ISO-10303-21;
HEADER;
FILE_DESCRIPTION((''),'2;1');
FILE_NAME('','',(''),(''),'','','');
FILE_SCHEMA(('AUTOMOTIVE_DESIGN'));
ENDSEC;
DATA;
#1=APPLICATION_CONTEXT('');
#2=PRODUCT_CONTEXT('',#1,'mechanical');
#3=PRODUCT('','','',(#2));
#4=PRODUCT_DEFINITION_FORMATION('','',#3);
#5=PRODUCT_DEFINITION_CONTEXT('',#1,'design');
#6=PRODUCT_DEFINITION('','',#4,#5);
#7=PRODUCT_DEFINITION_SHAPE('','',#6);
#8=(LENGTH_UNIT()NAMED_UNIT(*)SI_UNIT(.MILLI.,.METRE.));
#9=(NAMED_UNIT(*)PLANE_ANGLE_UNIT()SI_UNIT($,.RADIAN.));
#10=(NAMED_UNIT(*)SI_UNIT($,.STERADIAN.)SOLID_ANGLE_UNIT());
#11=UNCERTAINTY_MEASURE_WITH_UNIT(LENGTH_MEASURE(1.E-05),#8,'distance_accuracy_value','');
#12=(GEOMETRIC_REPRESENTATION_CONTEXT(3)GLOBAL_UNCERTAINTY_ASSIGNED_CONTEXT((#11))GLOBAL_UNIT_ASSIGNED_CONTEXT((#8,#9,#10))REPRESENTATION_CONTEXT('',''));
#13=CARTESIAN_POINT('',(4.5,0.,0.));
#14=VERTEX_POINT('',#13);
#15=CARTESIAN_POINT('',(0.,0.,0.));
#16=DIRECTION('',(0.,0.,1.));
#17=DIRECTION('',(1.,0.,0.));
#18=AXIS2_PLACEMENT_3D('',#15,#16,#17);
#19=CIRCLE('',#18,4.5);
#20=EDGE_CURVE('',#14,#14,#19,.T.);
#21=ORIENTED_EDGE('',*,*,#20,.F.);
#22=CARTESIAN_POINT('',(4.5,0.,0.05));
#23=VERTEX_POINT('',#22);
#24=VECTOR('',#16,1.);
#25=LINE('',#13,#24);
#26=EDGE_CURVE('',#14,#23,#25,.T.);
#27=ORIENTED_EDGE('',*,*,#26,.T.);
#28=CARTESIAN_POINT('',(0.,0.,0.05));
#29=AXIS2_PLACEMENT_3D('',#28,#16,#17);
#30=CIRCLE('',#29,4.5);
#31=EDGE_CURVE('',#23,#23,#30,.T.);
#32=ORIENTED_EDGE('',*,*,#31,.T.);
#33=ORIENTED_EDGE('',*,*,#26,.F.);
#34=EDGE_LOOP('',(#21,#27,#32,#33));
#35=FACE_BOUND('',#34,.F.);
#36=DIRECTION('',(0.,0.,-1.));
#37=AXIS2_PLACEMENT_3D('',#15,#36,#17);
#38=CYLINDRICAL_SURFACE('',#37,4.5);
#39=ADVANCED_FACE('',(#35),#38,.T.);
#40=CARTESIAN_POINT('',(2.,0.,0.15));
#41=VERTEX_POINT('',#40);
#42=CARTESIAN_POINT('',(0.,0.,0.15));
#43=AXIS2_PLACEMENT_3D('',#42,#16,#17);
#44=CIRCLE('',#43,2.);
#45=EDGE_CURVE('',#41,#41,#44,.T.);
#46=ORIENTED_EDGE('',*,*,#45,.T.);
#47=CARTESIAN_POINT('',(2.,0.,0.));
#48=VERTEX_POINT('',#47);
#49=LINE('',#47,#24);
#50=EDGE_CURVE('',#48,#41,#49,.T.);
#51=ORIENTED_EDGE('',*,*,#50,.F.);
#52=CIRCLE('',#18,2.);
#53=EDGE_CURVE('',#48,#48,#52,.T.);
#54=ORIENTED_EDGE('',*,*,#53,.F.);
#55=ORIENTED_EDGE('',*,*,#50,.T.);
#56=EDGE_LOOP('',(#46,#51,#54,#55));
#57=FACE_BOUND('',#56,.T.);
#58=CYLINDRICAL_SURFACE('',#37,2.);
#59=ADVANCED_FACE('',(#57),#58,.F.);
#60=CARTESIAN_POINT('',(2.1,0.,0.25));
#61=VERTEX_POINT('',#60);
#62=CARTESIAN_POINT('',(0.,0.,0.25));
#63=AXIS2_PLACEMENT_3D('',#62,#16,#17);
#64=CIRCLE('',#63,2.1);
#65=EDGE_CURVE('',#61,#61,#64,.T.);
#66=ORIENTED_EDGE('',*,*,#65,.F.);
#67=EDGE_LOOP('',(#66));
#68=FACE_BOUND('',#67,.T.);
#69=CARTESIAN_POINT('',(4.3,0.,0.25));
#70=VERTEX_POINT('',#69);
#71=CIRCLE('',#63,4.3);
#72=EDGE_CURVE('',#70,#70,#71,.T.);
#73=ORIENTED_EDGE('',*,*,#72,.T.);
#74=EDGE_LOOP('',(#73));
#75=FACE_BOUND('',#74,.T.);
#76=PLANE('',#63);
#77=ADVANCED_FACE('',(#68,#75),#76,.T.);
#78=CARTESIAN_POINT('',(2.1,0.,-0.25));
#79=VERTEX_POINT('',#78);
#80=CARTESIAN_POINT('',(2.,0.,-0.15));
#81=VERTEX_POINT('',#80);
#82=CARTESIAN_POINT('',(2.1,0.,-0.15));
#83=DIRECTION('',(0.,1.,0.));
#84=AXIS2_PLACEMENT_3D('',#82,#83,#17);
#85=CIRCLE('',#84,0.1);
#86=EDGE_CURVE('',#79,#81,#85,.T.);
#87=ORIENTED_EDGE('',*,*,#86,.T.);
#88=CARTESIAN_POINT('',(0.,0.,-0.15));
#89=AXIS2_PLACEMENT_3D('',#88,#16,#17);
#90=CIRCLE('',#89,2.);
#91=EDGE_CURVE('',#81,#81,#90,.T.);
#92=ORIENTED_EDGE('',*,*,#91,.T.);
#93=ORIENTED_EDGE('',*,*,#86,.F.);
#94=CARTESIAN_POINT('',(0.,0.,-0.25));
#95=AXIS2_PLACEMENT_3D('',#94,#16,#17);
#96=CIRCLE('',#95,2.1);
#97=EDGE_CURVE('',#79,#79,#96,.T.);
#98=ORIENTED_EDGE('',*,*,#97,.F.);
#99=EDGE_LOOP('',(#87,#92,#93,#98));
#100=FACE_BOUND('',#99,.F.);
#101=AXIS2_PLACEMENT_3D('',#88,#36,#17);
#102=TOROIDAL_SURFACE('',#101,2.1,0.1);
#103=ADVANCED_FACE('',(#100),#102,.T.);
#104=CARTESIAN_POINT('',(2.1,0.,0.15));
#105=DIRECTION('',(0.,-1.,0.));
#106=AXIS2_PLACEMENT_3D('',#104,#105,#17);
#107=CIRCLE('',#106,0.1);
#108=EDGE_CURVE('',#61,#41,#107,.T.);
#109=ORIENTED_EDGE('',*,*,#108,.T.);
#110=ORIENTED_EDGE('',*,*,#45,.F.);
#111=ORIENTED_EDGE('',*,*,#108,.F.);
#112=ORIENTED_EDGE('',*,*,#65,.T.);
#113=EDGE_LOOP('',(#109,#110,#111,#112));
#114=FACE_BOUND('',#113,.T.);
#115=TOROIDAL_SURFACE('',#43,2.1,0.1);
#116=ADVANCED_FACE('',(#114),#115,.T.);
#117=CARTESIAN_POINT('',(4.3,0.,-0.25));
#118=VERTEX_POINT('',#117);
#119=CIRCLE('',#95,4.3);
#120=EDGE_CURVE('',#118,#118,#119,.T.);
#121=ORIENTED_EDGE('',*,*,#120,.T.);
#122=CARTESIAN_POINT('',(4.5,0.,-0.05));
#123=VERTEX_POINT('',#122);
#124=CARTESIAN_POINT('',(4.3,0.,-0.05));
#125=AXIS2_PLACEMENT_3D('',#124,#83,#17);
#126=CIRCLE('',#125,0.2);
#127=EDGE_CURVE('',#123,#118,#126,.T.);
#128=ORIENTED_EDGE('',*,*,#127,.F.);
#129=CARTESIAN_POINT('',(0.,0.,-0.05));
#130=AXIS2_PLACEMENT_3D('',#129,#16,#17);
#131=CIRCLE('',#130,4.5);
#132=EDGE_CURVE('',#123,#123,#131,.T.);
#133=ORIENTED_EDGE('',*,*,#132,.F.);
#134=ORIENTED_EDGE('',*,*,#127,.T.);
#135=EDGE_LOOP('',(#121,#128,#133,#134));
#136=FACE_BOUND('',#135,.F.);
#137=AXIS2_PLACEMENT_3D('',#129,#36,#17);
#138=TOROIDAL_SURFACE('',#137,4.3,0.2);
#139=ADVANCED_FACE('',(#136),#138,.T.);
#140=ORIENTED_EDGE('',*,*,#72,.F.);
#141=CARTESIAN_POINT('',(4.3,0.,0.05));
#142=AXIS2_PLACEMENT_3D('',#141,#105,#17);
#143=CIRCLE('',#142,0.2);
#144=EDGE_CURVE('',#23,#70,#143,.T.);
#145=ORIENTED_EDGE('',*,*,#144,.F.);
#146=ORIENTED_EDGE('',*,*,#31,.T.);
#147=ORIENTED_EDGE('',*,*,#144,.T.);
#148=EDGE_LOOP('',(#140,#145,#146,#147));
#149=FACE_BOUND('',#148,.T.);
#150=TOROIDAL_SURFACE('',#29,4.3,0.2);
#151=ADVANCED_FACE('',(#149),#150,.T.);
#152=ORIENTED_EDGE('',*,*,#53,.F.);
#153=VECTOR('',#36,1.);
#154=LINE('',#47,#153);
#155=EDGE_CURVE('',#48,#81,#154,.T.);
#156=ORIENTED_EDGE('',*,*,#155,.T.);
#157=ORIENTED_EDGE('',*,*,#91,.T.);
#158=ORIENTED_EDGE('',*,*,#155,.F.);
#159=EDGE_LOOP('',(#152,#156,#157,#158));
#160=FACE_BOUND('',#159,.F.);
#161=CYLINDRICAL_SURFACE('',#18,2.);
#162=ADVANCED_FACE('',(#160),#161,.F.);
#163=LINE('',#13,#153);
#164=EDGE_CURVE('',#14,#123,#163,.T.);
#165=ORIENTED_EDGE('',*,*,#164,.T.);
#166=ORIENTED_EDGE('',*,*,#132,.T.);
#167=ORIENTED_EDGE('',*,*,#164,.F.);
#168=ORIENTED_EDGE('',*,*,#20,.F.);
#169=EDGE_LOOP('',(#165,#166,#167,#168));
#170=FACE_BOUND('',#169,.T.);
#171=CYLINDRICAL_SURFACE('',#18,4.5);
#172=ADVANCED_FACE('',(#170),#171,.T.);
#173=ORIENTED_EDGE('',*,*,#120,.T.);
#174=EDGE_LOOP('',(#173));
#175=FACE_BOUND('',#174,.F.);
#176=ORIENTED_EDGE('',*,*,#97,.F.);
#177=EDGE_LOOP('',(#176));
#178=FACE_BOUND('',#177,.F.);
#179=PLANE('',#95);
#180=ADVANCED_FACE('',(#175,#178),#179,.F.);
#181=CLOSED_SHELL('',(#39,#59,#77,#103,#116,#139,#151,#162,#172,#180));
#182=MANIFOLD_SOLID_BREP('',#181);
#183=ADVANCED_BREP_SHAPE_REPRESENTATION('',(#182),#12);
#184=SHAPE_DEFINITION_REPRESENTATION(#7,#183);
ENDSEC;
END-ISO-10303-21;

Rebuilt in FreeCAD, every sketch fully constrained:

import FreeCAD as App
import Part
import Sketcher
from FreeCAD import Vector
Q = App.Units.Quantity


def edges_at(feature, points):
    """Names of the edges that pass closest to the given points."""
    edges = feature.Shape.Edges
    near = lambda p: min(range(len(edges)), key=lambda i: edges[i].distToShape(Part.Vertex(*p))[0])
    return sorted({f"Edge{near(p) + 1}" for p in points})

doc = App.newDocument("Part")
params = doc.addObject("Spreadsheet::Sheet", "Params")
for row, (alias, value) in enumerate([
    ("sketch1_diameter", "9 mm"),
    ("sketch1_diameter2", "4 mm"),
    ("pad1_length", "0.5 mm"),
    ("fillet_radius", "0.2 mm"),
    ("fillet2_radius", "0.1 mm"),
], start=1):
    params.set(f"A{row}", alias)
    params.set(f"B{row}", "=" + value)
    params.setAlias(f"B{row}", alias)

body = doc.addObject("PartDesign::Body", "Body")

sketch1 = body.newObject("Sketcher::SketchObject", "Sketch")
sketch1.AttachmentSupport = (doc.getObject("XY_Plane"), [""])
sketch1.MapMode = "FlatFace"
sketch1.addGeometry([
    Part.Circle(Vector(0, 0, 0), Vector(0, 0, 1), 4.5),
    Part.Circle(Vector(0, 0, 0), Vector(0, 0, 1), 2),
], False)
sketch1.addConstraint([
    Sketcher.Constraint("Coincident", 0, 3, -1, 1),
    Sketcher.Constraint("Coincident", 1, 3, -1, 1),
    Sketcher.Constraint("Diameter", 0, Q("9 mm")),
    Sketcher.Constraint("Diameter", 1, Q("4 mm")),
])
sketch1.setExpression("Constraints[2]", "Params.sketch1_diameter")
sketch1.setExpression("Constraints[3]", "Params.sketch1_diameter2")
pad1 = body.newObject("PartDesign::Pad", "Pad")
pad1.Profile = sketch1
pad1.setExpression("Length", "Params.pad1_length")
pad1.Midplane = True
doc.recompute()

fillet = body.newObject("PartDesign::Fillet", "Fillet")
fillet.Base = (pad1, edges_at(pad1, [(-4.5, 0, 0.25), (-4.5, 0, -0.25)]))
fillet.setExpression("Radius", "Params.fillet_radius")
doc.recompute()

fillet2 = body.newObject("PartDesign::Fillet", "Fillet001")
fillet2.Base = (fillet, edges_at(fillet, [(-2, 0, 0.25), (-2, 0, -0.25)]))
fillet2.setExpression("Radius", "Params.fillet2_radius")

doc.recompute()
